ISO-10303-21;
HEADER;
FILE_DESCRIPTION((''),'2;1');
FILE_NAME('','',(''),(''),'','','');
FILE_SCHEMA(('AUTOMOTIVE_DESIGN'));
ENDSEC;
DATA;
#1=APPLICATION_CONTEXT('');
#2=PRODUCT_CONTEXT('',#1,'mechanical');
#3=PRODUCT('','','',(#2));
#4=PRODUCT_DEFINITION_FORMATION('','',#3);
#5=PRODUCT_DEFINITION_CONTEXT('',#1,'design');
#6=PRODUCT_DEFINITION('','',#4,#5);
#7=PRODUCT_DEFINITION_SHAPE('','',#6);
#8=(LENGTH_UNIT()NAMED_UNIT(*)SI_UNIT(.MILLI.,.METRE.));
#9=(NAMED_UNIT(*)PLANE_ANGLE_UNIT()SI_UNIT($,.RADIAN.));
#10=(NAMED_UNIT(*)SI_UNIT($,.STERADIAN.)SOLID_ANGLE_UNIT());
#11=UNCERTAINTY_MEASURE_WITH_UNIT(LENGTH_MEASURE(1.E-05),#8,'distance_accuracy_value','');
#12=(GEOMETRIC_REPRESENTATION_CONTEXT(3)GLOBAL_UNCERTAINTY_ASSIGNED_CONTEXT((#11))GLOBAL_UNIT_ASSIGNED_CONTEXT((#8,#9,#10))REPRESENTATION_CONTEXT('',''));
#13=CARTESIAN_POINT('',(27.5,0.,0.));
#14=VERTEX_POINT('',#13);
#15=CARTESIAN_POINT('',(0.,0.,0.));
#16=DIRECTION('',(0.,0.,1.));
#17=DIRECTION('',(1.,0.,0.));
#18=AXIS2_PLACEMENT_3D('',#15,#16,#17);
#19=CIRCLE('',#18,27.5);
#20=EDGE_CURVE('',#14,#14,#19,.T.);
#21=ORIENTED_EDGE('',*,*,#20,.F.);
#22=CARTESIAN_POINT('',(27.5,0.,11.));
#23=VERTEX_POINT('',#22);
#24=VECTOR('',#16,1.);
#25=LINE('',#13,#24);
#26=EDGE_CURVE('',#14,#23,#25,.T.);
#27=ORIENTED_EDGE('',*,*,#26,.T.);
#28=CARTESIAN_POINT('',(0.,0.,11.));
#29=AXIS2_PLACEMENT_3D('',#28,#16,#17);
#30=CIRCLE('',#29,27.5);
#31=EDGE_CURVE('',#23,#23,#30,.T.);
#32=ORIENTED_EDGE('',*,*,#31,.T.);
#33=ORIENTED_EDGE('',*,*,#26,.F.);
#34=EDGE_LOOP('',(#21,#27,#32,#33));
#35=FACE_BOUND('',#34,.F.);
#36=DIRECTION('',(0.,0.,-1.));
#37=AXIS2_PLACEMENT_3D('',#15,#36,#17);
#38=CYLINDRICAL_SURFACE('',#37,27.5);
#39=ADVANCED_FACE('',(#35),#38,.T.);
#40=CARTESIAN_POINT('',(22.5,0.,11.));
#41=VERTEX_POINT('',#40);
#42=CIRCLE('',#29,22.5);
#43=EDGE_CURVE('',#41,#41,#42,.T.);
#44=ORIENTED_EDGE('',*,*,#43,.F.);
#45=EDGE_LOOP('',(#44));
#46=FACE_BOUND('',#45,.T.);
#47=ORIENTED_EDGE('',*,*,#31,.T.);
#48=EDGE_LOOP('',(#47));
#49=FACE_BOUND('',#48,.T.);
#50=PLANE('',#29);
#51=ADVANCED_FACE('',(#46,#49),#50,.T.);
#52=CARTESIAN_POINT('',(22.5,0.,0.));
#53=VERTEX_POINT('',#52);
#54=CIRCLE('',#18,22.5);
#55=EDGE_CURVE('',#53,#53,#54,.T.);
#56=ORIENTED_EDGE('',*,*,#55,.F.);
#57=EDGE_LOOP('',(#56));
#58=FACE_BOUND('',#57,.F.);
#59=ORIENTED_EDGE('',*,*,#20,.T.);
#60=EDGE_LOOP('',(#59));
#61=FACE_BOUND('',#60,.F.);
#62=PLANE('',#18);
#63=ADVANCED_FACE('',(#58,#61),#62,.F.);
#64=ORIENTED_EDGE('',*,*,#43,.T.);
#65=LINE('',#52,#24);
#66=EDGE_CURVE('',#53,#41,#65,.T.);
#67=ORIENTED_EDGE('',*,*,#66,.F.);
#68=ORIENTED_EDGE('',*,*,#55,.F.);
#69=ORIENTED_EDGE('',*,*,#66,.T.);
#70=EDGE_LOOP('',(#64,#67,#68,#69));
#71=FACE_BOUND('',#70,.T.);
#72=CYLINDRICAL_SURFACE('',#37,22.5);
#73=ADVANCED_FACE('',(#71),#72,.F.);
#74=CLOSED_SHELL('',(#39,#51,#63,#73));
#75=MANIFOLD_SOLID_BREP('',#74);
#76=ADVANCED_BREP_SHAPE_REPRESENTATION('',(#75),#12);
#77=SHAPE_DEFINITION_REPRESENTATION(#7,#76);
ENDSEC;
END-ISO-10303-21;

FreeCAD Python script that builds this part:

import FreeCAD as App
import Part
import Sketcher

doc = App.newDocument("Part")
body = doc.addObject("PartDesign::Body", "Body")

# Sketch on XY plane
sketch1 = doc.addObject("Sketcher::SketchObject", "Sketch")
body.addObject(sketch1)
sketch1.AttachmentSupport = (doc.XY_Plane, [""])
sketch1.MapMode = "FlatFace"
sketch1.addGeometry([
    Part.Circle(App.Vector(0, 0, 0), App.Vector(0, 0, 1), 27.5),
    Part.Circle(App.Vector(0, 0, 0), App.Vector(0, 0, 1), 22.5),
], False)
sketch1.addConstraint([
    Sketcher.Constraint("Coincident", 0, 3, -1, 1),
    Sketcher.Constraint("Coincident", 1, 3, -1, 1),
    Sketcher.Constraint("Diameter", 0, 55.0),
    Sketcher.Constraint("Diameter", 1, 45.0),
])
pad1 = doc.addObject("PartDesign::Pad", "Pad")
body.addObject(pad1)
pad1.Profile = sketch1
pad1.Length = 11

doc.recompute()
